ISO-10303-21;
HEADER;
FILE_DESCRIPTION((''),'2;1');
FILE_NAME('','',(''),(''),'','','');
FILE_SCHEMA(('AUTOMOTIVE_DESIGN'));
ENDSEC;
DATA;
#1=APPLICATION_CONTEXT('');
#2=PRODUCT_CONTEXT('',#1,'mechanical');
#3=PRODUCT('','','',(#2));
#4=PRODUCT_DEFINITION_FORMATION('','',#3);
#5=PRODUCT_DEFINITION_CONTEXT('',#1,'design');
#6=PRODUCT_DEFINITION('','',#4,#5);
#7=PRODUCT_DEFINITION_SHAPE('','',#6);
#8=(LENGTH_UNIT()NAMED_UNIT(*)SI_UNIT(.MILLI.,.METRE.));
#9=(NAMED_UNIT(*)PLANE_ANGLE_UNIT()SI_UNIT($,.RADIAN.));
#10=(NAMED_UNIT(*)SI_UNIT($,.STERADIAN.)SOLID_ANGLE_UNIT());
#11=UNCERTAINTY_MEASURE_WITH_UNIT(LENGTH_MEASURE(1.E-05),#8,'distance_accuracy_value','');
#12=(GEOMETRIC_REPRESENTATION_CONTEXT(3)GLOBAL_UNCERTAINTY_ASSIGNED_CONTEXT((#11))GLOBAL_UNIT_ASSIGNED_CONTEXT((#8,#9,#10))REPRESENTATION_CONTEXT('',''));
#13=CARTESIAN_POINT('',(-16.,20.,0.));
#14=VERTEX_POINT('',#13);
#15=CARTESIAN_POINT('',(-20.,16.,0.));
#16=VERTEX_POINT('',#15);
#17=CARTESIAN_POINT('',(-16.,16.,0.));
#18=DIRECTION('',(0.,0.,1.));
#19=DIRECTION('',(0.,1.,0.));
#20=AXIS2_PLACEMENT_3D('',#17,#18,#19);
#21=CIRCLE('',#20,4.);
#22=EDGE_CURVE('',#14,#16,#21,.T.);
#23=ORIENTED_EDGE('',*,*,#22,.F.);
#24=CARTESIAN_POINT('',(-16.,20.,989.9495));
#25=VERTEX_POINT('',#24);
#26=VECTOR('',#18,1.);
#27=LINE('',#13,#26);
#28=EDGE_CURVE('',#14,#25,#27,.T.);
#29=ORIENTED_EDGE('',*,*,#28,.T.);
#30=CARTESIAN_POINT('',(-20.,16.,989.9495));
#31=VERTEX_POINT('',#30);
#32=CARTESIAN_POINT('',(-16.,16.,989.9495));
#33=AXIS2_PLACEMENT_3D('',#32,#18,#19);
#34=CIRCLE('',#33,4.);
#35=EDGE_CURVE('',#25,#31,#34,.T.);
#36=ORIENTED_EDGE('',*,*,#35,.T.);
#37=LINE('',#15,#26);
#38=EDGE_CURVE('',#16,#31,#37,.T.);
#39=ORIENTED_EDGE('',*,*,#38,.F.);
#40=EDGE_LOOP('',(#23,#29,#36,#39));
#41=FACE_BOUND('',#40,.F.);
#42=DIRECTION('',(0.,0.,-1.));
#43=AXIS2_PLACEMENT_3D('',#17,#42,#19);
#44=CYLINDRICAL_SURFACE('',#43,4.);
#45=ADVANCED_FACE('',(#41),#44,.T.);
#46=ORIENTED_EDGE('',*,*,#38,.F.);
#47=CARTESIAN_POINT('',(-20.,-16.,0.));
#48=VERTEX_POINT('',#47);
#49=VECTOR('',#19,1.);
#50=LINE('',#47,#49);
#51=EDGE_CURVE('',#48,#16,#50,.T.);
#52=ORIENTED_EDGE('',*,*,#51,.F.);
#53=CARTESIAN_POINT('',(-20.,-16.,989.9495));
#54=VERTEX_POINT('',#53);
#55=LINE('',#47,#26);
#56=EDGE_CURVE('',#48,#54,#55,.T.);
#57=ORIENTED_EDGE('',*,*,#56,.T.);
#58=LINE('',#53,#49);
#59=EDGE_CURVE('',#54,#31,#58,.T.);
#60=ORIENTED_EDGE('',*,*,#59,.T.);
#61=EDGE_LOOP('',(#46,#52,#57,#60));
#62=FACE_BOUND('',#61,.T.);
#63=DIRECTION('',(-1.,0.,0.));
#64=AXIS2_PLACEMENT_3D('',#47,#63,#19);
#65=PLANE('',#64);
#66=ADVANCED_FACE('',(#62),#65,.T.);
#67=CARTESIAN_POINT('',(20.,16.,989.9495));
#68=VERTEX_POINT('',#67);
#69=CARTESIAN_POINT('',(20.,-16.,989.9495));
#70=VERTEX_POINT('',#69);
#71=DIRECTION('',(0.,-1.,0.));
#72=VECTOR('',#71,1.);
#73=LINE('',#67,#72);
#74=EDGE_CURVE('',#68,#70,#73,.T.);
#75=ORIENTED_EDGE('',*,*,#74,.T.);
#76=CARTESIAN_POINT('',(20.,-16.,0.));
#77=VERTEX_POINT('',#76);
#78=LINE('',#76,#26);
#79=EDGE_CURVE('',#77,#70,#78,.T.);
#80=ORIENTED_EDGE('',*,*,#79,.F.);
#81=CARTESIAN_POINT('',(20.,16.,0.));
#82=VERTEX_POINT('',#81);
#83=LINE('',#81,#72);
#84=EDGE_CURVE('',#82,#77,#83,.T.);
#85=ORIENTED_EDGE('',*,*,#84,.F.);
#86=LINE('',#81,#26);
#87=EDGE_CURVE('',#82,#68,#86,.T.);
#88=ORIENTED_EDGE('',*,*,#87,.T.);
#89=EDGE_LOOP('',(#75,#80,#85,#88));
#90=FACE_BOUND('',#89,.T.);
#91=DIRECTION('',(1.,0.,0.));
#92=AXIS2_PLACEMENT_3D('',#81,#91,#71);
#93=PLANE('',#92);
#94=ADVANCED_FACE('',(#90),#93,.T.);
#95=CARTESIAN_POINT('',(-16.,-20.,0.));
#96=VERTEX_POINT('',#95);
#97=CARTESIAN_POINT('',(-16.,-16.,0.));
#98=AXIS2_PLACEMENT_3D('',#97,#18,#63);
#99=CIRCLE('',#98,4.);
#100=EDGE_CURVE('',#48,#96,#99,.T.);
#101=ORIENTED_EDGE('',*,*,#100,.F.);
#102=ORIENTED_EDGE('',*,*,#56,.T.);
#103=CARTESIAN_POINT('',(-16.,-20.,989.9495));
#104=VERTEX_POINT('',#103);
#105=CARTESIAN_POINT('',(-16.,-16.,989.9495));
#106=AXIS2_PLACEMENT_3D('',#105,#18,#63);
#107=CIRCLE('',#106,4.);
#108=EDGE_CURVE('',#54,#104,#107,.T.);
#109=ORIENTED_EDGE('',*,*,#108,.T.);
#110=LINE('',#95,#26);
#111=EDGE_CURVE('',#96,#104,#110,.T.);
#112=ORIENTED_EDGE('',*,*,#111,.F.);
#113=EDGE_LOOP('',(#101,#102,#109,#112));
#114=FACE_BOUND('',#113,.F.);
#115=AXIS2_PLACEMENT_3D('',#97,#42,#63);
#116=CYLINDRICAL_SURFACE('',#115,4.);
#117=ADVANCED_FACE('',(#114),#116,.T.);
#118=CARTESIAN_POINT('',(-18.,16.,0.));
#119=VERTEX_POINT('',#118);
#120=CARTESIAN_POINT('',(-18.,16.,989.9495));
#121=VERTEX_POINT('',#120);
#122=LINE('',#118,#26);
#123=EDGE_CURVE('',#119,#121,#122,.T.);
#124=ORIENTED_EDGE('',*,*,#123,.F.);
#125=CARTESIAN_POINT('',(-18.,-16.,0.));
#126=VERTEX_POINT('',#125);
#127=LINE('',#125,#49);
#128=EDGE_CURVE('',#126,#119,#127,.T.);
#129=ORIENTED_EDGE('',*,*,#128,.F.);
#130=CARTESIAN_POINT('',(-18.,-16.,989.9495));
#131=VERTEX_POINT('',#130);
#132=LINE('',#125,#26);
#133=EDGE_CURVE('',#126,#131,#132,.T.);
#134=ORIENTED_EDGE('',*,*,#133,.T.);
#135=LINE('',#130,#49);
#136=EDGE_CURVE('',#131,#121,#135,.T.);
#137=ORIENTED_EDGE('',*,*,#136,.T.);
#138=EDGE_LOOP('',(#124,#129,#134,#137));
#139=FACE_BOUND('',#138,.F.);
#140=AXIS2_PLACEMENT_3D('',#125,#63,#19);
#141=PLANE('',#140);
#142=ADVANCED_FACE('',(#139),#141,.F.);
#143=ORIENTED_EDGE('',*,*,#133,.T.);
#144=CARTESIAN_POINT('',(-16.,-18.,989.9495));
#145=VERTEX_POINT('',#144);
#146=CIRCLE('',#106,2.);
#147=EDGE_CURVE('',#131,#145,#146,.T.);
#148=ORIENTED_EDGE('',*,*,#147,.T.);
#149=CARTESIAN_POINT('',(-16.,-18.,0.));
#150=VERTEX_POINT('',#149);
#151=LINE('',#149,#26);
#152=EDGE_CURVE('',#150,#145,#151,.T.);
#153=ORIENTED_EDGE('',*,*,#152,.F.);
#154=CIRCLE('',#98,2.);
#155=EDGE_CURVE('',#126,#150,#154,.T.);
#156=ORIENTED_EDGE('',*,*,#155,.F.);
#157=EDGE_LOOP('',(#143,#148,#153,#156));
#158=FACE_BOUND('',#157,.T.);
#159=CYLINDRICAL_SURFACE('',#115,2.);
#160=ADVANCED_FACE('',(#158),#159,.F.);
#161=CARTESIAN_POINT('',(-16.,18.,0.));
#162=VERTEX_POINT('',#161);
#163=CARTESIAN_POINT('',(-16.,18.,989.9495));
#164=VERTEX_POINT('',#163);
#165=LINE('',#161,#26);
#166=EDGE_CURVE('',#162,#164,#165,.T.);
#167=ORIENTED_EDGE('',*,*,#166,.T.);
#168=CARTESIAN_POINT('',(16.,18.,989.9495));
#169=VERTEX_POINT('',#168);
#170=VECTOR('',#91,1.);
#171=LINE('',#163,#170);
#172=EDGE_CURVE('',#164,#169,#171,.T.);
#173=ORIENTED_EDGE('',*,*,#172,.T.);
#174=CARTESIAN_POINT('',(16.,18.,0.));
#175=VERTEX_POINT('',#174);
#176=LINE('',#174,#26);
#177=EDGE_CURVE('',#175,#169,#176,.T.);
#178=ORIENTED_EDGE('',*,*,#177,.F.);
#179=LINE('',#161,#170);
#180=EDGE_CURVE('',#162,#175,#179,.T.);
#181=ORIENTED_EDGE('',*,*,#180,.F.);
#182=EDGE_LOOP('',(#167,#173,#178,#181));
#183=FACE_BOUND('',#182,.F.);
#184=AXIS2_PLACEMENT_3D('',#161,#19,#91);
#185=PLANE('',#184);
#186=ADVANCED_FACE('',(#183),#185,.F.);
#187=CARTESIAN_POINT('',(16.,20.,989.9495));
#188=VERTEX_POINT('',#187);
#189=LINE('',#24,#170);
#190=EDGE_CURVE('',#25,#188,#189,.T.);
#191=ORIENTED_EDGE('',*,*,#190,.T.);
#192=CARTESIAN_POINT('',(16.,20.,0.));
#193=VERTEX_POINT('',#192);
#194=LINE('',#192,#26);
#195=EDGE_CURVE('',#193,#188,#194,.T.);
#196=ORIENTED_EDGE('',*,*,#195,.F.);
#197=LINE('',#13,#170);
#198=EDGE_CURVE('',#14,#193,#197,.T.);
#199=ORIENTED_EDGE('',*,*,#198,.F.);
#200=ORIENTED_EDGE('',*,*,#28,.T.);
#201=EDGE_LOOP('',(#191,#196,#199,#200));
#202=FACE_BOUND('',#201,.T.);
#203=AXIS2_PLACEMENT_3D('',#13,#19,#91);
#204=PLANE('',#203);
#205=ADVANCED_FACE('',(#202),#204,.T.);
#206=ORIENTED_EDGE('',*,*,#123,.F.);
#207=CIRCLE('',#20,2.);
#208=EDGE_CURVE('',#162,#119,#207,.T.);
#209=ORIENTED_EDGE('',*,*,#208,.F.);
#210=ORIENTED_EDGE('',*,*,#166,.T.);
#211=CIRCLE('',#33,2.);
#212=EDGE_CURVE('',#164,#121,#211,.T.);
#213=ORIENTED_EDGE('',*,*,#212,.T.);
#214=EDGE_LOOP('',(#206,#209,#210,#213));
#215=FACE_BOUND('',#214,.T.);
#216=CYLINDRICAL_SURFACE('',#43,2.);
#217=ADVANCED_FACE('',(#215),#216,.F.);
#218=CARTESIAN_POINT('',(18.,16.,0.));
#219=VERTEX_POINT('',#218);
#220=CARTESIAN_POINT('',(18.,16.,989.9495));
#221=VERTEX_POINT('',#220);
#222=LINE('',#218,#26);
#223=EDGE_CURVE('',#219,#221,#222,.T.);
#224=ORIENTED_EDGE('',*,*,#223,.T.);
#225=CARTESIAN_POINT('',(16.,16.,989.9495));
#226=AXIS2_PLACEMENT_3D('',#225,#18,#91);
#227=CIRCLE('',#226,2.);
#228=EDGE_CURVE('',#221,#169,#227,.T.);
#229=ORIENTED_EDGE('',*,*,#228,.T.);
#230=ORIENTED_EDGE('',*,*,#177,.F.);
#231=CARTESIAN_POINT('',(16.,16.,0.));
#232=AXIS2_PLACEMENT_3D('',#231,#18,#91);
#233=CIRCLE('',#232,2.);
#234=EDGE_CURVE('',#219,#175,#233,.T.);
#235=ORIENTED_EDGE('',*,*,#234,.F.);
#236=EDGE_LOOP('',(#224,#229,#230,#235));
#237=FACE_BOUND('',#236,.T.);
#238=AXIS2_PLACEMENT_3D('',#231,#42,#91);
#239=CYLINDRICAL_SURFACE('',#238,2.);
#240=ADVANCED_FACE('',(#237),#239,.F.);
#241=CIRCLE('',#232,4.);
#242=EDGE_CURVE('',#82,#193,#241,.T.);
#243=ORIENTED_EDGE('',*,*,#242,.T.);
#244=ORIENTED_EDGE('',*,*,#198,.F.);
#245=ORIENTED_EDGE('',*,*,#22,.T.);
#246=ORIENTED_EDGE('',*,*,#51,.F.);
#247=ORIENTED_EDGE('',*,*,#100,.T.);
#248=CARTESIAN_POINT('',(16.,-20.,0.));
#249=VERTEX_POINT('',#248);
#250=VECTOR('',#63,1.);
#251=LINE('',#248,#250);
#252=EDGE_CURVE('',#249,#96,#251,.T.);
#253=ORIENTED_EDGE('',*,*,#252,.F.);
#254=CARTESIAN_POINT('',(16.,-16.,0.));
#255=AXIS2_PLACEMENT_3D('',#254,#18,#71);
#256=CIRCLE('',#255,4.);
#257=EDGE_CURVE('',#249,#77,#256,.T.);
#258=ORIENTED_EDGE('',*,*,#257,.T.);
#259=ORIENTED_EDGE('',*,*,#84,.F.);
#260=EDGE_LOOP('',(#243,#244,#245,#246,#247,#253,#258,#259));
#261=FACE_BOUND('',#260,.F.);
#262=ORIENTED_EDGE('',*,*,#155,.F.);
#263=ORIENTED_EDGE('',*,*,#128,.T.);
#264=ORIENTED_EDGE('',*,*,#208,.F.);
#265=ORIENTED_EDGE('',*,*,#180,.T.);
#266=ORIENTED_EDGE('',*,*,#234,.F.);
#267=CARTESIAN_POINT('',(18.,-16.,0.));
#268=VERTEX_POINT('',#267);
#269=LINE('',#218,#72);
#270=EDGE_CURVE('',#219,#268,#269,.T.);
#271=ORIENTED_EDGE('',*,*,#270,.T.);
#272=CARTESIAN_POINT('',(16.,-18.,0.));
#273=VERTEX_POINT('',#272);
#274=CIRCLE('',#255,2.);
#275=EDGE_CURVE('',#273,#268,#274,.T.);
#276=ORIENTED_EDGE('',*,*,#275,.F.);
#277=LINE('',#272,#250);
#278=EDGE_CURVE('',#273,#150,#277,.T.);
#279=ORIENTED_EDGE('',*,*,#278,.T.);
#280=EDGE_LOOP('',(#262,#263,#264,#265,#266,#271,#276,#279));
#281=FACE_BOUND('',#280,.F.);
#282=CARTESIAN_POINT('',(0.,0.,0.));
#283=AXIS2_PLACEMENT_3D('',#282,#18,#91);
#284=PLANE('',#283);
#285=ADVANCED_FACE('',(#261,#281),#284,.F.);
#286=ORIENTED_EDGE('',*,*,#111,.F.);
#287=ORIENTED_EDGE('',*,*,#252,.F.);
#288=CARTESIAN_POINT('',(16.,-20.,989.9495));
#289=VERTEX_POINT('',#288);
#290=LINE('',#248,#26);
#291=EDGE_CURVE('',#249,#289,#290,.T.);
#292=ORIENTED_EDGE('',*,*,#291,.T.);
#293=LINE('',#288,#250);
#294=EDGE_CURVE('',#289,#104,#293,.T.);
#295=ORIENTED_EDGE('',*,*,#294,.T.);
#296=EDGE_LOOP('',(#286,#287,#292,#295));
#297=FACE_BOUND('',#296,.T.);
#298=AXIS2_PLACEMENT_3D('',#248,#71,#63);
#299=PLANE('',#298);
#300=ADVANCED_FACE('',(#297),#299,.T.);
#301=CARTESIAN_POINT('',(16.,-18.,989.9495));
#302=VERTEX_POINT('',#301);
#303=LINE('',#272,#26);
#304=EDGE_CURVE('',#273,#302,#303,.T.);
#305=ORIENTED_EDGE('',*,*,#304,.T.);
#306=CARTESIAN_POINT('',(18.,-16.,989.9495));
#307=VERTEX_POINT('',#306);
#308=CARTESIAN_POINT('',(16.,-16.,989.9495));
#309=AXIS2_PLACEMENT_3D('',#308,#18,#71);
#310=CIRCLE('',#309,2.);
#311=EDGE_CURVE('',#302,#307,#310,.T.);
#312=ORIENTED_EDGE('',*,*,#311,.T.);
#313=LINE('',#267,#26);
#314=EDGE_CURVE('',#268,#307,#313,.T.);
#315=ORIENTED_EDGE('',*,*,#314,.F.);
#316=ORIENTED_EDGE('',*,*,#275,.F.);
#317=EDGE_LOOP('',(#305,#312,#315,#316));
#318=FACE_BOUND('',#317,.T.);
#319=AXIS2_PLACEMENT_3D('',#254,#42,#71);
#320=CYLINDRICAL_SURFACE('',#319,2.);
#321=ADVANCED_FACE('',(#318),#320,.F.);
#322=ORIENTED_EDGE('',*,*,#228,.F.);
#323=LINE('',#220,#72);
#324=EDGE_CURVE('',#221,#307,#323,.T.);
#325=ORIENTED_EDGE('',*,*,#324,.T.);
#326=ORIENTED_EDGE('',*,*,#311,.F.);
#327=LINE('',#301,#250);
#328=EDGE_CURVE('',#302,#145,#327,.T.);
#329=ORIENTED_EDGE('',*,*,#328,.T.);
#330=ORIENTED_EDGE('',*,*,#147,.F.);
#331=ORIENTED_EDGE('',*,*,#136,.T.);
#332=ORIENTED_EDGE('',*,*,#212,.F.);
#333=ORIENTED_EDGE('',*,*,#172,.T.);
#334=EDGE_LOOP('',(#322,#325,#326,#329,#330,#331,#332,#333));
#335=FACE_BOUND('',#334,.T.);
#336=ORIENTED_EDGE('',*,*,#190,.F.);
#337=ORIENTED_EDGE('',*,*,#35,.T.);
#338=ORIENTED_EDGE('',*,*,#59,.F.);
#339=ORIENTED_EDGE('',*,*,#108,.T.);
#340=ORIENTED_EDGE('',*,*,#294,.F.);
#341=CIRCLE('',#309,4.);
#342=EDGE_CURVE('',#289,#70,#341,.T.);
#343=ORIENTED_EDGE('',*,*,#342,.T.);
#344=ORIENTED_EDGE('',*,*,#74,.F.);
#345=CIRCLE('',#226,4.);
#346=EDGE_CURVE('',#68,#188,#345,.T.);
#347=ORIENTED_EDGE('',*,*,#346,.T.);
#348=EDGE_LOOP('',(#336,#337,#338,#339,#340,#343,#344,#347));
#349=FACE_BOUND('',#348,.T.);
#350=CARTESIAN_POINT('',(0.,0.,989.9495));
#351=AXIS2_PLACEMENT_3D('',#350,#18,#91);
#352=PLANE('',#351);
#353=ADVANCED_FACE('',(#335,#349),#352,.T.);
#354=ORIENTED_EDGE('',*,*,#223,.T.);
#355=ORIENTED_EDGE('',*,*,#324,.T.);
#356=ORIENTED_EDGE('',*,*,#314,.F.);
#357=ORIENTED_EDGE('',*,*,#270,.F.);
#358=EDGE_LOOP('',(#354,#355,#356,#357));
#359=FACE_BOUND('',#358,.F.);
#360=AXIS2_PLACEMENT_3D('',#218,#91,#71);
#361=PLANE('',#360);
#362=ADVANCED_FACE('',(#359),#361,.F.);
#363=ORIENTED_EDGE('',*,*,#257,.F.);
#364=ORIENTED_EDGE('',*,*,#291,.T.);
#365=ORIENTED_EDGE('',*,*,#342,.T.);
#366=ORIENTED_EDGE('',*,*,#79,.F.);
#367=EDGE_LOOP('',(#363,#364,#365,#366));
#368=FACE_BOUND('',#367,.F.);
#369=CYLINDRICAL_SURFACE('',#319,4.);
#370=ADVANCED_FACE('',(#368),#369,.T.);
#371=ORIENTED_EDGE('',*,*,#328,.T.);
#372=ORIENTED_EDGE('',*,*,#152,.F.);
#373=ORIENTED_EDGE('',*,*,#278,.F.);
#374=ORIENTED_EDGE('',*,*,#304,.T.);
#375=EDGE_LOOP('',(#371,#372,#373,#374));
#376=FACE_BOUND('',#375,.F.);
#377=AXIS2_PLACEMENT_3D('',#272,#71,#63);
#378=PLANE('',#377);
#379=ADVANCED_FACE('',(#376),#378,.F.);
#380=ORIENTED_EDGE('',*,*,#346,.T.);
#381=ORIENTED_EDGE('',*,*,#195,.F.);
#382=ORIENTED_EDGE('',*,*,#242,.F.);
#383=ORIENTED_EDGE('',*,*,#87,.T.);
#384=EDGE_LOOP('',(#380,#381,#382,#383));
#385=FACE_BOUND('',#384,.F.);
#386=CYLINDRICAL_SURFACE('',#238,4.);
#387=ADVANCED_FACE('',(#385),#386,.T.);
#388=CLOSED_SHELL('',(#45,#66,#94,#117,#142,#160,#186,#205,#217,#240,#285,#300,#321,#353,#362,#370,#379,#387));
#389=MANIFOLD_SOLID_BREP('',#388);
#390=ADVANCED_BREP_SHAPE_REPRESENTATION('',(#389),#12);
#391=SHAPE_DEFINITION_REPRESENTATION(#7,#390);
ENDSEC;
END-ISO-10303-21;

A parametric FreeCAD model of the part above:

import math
import FreeCAD as App
import Part
import Sketcher

V = App.Vector
Q = App.Units.Quantity

doc = App.newDocument("Part")
body = doc.addObject("PartDesign::Body", "Body")

# Sketch on XY plane
sketch1 = body.newObject("Sketcher::SketchObject", "Sketch")
sketch1.AttachmentSupport = (doc.getObject("XY_Plane"), [""])
sketch1.MapMode = "FlatFace"
sketch1.addGeometry([
    Part.LineSegment(V(-20, 16, 0), V(-20, -16, 0)),  # 0
    Part.ArcOfCircle(Part.Circle(V(-16, -16, 0), V(0, 0, 1), 4), math.radians(180), math.radians(270)),  # 1
    Part.LineSegment(V(-16, -20, 0), V(16, -20, 0)),  # 2
    Part.ArcOfCircle(Part.Circle(V(16, -16, 0), V(0, 0, 1), 4), math.radians(-90), math.radians(0)),  # 3
    Part.LineSegment(V(20, -16, 0), V(20, 16, 0)),  # 4
    Part.ArcOfCircle(Part.Circle(V(16, 16, 0), V(0, 0, 1), 4), math.radians(0), math.radians(90)),  # 5
    Part.LineSegment(V(16, 20, 0), V(-16, 20, 0)),  # 6
    Part.ArcOfCircle(Part.Circle(V(-16, 16, 0), V(0, 0, 1), 4), math.radians(90), math.radians(180)),  # 7
    Part.ArcOfCircle(Part.Circle(V(-16, 16, 0), V(0, 0, 1), 2), math.radians(90), math.radians(180)),  # 8
    Part.LineSegment(V(-16, 18, 0), V(16, 18, 0)),  # 9
    Part.ArcOfCircle(Part.Circle(V(16, 16, 0), V(0, 0, 1), 2), math.radians(0), math.radians(90)),  # 10
    Part.LineSegment(V(18, 16, 0), V(18, -16, 0)),  # 11
    Part.ArcOfCircle(Part.Circle(V(16, -16, 0), V(0, 0, 1), 2), math.radians(-90), math.radians(0)),  # 12
    Part.LineSegment(V(16, -18, 0), V(-16, -18, 0)),  # 13
    Part.ArcOfCircle(Part.Circle(V(-16, -16, 0), V(0, 0, 1), 2), math.radians(180), math.radians(270)),  # 14
    Part.LineSegment(V(-18, -16, 0), V(-18, 16, 0)),  # 15
], False)
sketch1.addConstraint([
    Sketcher.Constraint("Tangent", 0, 2, 1, 1),
    Sketcher.Constraint("Tangent", 1, 2, 2, 1),
    Sketcher.Constraint("Tangent", 2, 2, 3, 1),
    Sketcher.Constraint("Tangent", 3, 2, 4, 1),
    Sketcher.Constraint("Tangent", 4, 2, 5, 1),
    Sketcher.Constraint("Tangent", 5, 2, 6, 1),
    Sketcher.Constraint("Tangent", 6, 2, 7, 1),
    Sketcher.Constraint("Tangent", 7, 2, 0, 1),
    Sketcher.Constraint("Tangent", 8, 1, 9, 1),
    Sketcher.Constraint("Tangent", 9, 2, 10, 2),
    Sketcher.Constraint("Tangent", 10, 1, 11, 1),
    Sketcher.Constraint("Tangent", 11, 2, 12, 2),
    Sketcher.Constraint("Tangent", 12, 1, 13, 1),
    Sketcher.Constraint("Tangent", 13, 2, 14, 2),
    Sketcher.Constraint("Tangent", 14, 1, 15, 1),
    Sketcher.Constraint("Tangent", 15, 2, 8, 2),
    Sketcher.Constraint("Vertical", 0),
    Sketcher.Constraint("Horizontal", 2),
    Sketcher.Constraint("Vertical", 4),
    Sketcher.Constraint("Horizontal", 6),
    Sketcher.Constraint("Horizontal", 9),
    Sketcher.Constraint("Vertical", 11),
    Sketcher.Constraint("Horizontal", 13),
    Sketcher.Constraint("Vertical", 15),
    Sketcher.Constraint("Coincident", 8, 3, 7, 3),
    Sketcher.Constraint("Coincident", 10, 3, 5, 3),
    Sketcher.Constraint("Coincident", 12, 3, 3, 3),
    Sketcher.Constraint("Equal", 1, 3),
    Sketcher.Constraint("Equal", 3, 5),
    Sketcher.Constraint("Equal", 5, 7),
    Sketcher.Constraint("Equal", 12, 14),
    Sketcher.Constraint("Symmetric", 1, 3, 5, 3, -1, 1),
    Sketcher.Constraint("Equal", 13, 0),
    Sketcher.Constraint("Radius", 1, Q("4 mm")),
    Sketcher.Constraint("Radius", 8, Q("2 mm")),
    Sketcher.Constraint("DistanceX", 0, 2, -1, 1, Q("20 mm")),
])
pad1 = body.newObject("PartDesign::Pad", "Pad")
pad1.Profile = sketch1
pad1.Length = 989.9495

doc.recompute()
